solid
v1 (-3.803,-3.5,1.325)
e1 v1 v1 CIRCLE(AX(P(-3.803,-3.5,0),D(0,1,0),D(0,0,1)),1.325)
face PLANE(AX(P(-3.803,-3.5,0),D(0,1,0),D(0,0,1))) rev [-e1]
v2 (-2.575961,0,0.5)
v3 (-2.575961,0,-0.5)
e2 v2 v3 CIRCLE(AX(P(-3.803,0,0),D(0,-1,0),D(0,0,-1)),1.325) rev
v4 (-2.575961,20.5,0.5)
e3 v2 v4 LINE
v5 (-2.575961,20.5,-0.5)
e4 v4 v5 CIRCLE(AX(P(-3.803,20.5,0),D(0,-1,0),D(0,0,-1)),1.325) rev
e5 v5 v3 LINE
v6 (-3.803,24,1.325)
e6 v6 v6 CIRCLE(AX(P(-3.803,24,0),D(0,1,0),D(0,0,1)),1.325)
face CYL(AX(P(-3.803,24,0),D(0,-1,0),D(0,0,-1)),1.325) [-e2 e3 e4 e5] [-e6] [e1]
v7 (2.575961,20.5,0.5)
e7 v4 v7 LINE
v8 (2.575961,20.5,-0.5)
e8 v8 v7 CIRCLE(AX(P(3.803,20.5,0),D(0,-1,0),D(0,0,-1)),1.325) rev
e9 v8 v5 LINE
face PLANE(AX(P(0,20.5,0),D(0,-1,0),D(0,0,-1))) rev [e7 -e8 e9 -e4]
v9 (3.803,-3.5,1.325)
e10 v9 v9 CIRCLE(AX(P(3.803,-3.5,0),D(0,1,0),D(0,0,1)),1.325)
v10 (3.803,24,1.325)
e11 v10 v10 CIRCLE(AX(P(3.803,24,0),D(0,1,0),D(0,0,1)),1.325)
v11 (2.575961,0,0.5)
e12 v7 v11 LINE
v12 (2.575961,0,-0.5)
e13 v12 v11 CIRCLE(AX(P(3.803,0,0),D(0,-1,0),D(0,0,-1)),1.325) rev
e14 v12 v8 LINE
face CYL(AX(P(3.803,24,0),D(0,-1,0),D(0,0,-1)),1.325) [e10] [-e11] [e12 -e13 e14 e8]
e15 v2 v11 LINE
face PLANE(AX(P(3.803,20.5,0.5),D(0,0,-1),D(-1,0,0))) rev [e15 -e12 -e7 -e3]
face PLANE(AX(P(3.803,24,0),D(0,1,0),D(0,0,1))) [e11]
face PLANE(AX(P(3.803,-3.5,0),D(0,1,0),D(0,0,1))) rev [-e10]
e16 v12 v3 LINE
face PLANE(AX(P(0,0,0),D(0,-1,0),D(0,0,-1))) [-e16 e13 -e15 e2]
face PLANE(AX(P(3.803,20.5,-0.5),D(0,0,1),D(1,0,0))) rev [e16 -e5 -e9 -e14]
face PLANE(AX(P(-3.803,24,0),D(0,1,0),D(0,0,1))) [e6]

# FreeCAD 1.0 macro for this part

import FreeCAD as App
import Part
import Sketcher

V = App.Vector


def add_polygon(sketch, points):
    """Adds a closed chain of lines whose ends are joined by coincident constraints."""
    first, n = sketch.GeometryCount, len(points)
    for a, b in zip(points, points[1:] + points[:1]):
        sketch.addGeometry(Part.LineSegment(App.Vector(*a, 0), App.Vector(*b, 0)), False)
    for i in range(n):
        sketch.addConstraint(Sketcher.Constraint("Coincident", first + i, 2, first + (i + 1) % n, 1))

doc = App.newDocument("Part")
body = doc.addObject("PartDesign::Body", "Body")

# Sketch on XZ plane
sketch1 = body.newObject("Sketcher::SketchObject", "Sketch")
sketch1.AttachmentSupport = (doc.getObject("XZ_Plane"), [""])
sketch1.MapMode = "FlatFace"
add_polygon(sketch1, [(-3.8, -0.5), (-3.8, 0.5), (3.8, 0.5), (3.8, -0.5)])  # lines 0-3
sketch1.addConstraint([
    Sketcher.Constraint("Vertical", 0),
    Sketcher.Constraint("Horizontal", 1),
    Sketcher.Constraint("Vertical", 2),
    Sketcher.Constraint("Horizontal", 3),
    Sketcher.Constraint("Symmetric", 0, 2, 2, 2, -1, 1),
    Sketcher.Constraint("DistanceY", 0, 1, 0, 2, 1.0),
    Sketcher.Constraint("DistanceX", 1, 1, 1, 2, 7.606),
])
pad1 = body.newObject("PartDesign::Pad", "Pad")
pad1.Profile = sketch1
pad1.Length = 20.5
pad1.Reversed = True

# Sketch on XZ plane
sketch2 = body.newObject("Sketcher::SketchObject", "Sketch001")
sketch2.AttachmentSupport = (doc.getObject("XZ_Plane"), [""])
sketch2.MapMode = "FlatFace"
sketch2.AttachmentOffset = App.Placement(V(0, 0, -10.25), App.Rotation())
sketch2.addGeometry([
    Part.Circle(V(-3.8, 0, 0), V(0, 0, 1), 1.3),
    Part.Circle(V(3.8, 0, 0), V(0, 0, 1), 1.3),
], False)
sketch2.addConstraint([
    Sketcher.Constraint("Equal", 0, 1),
    Sketcher.Constraint("Symmetric", 0, 3, 1, 3, -1, 1),
    Sketcher.Constraint("PointOnObject", 0, 3, -1),
    Sketcher.Constraint("Diameter", 0, 2.65),
    Sketcher.Constraint("DistanceX", 0, 3, -1, 1, 3.803),
])
pad2 = body.newObject("PartDesign::Pad", "Pad001")
pad2.Profile = sketch2
pad2.Length = 27.5
pad2.Midplane = True

doc.recompute()
